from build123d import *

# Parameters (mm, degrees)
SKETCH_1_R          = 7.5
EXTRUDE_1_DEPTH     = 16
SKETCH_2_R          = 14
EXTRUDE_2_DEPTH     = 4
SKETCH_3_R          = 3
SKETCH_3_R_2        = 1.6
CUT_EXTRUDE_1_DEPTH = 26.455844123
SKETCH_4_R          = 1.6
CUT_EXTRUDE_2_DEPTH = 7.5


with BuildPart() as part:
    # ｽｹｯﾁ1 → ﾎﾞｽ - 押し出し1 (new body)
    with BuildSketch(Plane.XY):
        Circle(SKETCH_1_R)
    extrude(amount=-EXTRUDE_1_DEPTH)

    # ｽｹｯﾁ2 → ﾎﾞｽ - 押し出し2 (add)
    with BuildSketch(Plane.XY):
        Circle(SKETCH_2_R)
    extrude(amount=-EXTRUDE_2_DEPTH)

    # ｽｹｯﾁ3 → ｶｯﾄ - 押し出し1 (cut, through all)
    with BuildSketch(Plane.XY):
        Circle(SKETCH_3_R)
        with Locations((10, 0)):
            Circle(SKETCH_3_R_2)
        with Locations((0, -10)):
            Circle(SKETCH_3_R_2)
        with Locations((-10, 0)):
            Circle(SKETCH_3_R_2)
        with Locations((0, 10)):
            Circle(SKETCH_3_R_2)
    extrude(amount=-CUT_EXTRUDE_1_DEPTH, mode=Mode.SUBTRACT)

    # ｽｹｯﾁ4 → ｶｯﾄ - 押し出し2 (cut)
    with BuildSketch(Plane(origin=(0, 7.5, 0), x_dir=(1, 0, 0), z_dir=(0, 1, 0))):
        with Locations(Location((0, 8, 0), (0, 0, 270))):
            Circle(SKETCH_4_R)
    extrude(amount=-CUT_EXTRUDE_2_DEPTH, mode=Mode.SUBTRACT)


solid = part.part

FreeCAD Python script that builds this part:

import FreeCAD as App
import Part
import Sketcher
Q = App.Units.Quantity

doc = App.newDocument("Part")
body = doc.addObject("PartDesign::Body", "Body")

# Sketch on XY plane
sketch1 = doc.addObject("Sketcher::SketchObject", "Sketch")
body.addObject(sketch1)
sketch1.AttachmentSupport = (doc.XY_Plane, [""])
sketch1.MapMode = "FlatFace"
sketch1.addGeometry(Part.Circle(App.Vector(0, 0, 0), App.Vector(0, 0, 1), 7.5), False)
sketch1.addConstraint([
    Sketcher.Constraint("Coincident", 0, 3, -1, 1),
    Sketcher.Constraint("Diameter", 0, Q("15 mm")),
])
pad1 = doc.addObject("PartDesign::Pad", "Pad")
body.addObject(pad1)
pad1.Profile = sketch1
pad1.Length = 16
pad1.Reversed = True

# Sketch on XY plane
sketch2 = doc.addObject("Sketcher::SketchObject", "Sketch001")
body.addObject(sketch2)
sketch2.AttachmentSupport = (doc.XY_Plane, [""])
sketch2.MapMode = "FlatFace"
sketch2.addGeometry(Part.Circle(App.Vector(0, 0, 0), App.Vector(0, 0, 1), 14), False)
sketch2.addConstraint([
    Sketcher.Constraint("Coincident", 0, 3, -1, 1),
    Sketcher.Constraint("Diameter", 0, Q("28 mm")),
])
pad2 = doc.addObject("PartDesign::Pad", "Pad001")
body.addObject(pad2)
pad2.Profile = sketch2
pad2.Length = 4
pad2.Reversed = True

# Sketch on XY plane
sketch3 = doc.addObject("Sketcher::SketchObject", "Sketch002")
body.addObject(sketch3)
sketch3.AttachmentSupport = (doc.XY_Plane, [""])
sketch3.MapMode = "FlatFace"
sketch3.addGeometry([
    Part.Circle(App.Vector(0, 0, 0), App.Vector(0, 0, 1), 3),  # 0
    Part.Circle(App.Vector(10, 0, 0), App.Vector(0, 0, 1), 1.6),  # 1
    Part.Circle(App.Vector(0, -10, 0), App.Vector(0, 0, 1), 1.6),  # 2
    Part.Circle(App.Vector(-10, 0, 0), App.Vector(0, 0, 1), 1.6),  # 3
    Part.Circle(App.Vector(0, 10, 0), App.Vector(0, 0, 1), 1.6),  # 4
], False)
sketch3.addConstraint([
    Sketcher.Constraint("Coincident", 0, 3, -1, 1),
    Sketcher.Constraint("Equal", 1, 2),
    Sketcher.Constraint("Equal", 2, 3),
    Sketcher.Constraint("Equal", 3, 4),
    Sketcher.Constraint("Symmetric", 1, 3, 3, 3, -1, 1),
    Sketcher.Constraint("Symmetric", 2, 3, 4, 3, -1, 1),
    Sketcher.Constraint("PointOnObject", 1, 3, -1),
    Sketcher.Constraint("PointOnObject", 2, 3, -2),
    Sketcher.Constraint("Diameter", 0, Q("6 mm")),
    Sketcher.Constraint("Diameter", 1, Q("3.2 mm")),
    Sketcher.Constraint("DistanceX", -1, 1, 1, 3, Q("10 mm")),
    Sketcher.Constraint("DistanceY", 2, 3, -1, 1, Q("10 mm")),
])
pocket1 = doc.addObject("PartDesign::Pocket", "Pocket")
body.addObject(pocket1)
pocket1.Profile = sketch3
pocket1.Type = "ThroughAll"

# Sketch on XZ plane
sketch4 = doc.addObject("Sketcher::SketchObject", "Sketch003")
body.addObject(sketch4)
sketch4.AttachmentSupport = (doc.XZ_Plane, [""])
sketch4.MapMode = "FlatFace"
sketch4.AttachmentOffset = App.Placement(App.Vector(0, 0, -7.5), App.Rotation())
sketch4.addGeometry(Part.Circle(App.Vector(0, -8, 0), App.Vector(0, 0, 1), 1.6), False)
sketch4.addConstraint([
    Sketcher.Constraint("PointOnObject", 0, 3, -2),
    Sketcher.Constraint("Diameter", 0, Q("3.2 mm")),
    Sketcher.Constraint("DistanceY", 0, 3, -1, 1, Q("8 mm")),
])
pocket2 = doc.addObject("PartDesign::Pocket", "Pocket001")
body.addObject(pocket2)
pocket2.Profile = sketch4
pocket2.Length = 7.5
pocket2.Reversed = True

doc.recompute()
